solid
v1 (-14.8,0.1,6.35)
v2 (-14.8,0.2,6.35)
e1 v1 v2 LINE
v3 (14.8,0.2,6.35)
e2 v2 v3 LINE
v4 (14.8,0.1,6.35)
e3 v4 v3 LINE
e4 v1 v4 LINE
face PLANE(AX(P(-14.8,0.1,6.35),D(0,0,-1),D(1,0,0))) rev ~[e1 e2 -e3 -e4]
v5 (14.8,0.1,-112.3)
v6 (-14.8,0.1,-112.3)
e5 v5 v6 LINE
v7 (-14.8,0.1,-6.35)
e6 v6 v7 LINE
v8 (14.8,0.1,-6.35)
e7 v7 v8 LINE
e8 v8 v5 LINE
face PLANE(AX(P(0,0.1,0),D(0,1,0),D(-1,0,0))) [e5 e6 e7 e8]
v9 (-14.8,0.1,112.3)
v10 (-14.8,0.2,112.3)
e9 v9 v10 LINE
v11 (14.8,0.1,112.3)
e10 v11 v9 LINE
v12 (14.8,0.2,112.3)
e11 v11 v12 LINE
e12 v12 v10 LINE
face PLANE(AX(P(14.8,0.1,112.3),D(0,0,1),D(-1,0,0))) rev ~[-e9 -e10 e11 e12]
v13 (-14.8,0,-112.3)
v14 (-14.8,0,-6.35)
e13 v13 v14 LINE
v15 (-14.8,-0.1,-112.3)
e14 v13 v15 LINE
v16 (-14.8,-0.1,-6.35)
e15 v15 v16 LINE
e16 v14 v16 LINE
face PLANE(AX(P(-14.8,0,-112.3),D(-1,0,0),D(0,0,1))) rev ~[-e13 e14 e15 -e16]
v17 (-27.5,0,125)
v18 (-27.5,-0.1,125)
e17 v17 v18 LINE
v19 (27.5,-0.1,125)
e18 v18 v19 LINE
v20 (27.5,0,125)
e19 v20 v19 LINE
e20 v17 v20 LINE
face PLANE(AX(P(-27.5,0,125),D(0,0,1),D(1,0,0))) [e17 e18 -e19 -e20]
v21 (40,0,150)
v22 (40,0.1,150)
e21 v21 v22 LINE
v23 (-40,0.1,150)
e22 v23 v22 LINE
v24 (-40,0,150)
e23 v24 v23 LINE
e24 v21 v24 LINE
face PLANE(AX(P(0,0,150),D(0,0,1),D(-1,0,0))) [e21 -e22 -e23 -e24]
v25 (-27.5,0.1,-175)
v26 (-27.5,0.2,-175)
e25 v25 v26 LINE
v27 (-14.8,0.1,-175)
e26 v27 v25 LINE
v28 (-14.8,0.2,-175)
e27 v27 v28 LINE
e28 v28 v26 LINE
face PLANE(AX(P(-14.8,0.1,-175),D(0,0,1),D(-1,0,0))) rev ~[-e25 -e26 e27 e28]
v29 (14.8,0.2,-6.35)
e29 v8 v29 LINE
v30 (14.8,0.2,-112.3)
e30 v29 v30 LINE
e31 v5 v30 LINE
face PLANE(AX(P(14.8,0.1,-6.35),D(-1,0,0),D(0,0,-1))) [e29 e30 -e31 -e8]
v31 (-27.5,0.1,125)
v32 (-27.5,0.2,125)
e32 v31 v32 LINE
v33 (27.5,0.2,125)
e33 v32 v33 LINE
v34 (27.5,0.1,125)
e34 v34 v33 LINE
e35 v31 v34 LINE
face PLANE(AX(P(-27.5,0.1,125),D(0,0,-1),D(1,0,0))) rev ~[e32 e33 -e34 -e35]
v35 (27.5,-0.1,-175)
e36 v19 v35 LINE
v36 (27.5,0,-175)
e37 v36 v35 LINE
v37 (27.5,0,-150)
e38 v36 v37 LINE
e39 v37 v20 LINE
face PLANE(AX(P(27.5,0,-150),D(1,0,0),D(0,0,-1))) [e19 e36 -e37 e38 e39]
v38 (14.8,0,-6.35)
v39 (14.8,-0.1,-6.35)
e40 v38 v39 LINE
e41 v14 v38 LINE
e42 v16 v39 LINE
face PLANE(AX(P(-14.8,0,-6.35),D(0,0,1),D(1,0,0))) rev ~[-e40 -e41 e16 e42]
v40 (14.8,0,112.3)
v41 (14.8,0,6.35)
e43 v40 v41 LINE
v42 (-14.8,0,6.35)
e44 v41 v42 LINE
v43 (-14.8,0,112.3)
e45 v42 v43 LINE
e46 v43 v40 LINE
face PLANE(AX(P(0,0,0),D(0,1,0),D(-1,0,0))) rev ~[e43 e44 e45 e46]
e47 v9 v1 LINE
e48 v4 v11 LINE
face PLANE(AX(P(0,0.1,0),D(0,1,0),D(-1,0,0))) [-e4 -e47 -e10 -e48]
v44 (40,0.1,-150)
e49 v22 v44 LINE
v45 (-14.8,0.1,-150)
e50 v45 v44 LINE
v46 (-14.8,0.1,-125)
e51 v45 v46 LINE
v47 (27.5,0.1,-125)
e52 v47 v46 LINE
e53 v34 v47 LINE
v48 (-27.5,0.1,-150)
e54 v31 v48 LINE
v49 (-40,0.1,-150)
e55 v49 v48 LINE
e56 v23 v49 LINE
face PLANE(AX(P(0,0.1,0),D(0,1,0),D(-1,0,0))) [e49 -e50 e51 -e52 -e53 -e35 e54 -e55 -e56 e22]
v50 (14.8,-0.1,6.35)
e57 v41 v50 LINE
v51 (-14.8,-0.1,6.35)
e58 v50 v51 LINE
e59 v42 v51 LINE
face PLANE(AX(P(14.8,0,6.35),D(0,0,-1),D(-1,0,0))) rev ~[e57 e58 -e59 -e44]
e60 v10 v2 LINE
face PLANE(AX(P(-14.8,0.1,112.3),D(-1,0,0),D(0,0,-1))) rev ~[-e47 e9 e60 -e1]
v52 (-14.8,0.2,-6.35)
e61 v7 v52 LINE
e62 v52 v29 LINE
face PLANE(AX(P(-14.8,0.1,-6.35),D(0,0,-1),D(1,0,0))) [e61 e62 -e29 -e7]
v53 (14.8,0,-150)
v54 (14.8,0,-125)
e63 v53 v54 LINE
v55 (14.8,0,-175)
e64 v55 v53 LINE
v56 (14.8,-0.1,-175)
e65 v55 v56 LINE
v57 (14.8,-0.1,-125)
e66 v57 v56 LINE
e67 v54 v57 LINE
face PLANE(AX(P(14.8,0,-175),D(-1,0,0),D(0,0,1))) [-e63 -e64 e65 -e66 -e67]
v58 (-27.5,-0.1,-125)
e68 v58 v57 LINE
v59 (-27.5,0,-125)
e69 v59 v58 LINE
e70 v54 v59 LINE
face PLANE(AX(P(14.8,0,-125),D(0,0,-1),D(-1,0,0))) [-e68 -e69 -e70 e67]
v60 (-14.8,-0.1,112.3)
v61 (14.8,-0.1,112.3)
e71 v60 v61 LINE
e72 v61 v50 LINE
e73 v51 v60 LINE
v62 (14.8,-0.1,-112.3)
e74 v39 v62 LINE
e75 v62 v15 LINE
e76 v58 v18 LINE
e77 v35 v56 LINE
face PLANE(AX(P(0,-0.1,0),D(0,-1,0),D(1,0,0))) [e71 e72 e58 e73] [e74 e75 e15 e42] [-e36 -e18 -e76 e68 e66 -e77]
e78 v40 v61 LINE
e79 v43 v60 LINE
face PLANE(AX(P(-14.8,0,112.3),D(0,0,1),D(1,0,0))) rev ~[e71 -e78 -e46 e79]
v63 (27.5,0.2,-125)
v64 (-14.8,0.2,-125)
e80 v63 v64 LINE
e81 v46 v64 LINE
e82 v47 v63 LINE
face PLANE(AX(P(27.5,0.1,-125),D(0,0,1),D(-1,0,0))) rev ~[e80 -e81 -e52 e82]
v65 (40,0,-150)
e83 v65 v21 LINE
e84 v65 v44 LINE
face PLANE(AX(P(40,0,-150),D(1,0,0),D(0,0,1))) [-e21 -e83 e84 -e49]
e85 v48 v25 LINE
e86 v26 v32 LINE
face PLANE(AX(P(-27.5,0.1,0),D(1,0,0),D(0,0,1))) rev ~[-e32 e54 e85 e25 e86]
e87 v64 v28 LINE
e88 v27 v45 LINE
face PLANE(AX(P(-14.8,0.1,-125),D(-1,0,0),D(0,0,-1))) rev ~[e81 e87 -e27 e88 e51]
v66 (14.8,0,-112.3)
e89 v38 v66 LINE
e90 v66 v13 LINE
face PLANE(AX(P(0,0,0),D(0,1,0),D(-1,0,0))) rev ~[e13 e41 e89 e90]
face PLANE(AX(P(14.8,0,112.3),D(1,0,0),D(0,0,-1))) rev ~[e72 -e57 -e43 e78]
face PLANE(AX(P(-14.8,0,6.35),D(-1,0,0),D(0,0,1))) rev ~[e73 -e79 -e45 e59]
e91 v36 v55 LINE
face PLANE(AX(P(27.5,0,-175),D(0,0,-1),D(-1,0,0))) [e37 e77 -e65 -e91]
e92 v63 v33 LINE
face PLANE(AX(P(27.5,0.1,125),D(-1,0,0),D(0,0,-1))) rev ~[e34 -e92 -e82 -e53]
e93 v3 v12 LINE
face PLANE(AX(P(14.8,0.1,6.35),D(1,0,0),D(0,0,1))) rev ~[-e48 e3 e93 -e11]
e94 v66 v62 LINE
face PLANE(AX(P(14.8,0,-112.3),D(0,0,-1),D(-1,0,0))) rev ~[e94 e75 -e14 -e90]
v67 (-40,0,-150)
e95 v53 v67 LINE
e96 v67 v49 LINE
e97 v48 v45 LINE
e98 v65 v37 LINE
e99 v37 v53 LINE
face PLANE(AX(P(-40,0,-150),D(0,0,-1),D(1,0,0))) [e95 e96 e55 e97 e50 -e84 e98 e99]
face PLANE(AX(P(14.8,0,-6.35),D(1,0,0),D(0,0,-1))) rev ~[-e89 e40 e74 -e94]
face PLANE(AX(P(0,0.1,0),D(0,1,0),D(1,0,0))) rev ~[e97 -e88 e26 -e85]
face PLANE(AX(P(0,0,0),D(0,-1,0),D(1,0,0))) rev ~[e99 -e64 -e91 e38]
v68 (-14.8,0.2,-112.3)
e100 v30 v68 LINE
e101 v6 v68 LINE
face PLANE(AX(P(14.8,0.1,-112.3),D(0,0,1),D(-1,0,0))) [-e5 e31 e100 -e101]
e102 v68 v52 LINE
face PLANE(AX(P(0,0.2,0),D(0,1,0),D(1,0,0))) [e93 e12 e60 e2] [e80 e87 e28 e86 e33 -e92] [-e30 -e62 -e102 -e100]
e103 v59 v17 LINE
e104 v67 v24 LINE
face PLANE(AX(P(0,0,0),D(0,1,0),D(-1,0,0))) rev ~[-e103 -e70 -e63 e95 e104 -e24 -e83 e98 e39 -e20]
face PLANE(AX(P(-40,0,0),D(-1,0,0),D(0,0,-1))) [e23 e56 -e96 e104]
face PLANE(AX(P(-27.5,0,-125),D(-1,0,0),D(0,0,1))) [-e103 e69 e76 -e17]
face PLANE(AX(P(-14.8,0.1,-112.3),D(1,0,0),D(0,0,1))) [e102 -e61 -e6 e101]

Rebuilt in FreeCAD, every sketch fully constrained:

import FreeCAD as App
import Part
import Sketcher

V = App.Vector


def add_polygon(sketch, points):
    """Adds a closed chain of lines whose ends are joined by coincident constraints."""
    first, n = sketch.GeometryCount, len(points)
    for a, b in zip(points, points[1:] + points[:1]):
        sketch.addGeometry(Part.LineSegment(App.Vector(*a, 0), App.Vector(*b, 0)), False)
    for i in range(n):
        sketch.addConstraint(Sketcher.Constraint("Coincident", first + i, 2, first + (i + 1) % n, 1))

doc = App.newDocument("Part")
body = doc.addObject("PartDesign::Body", "Body")

# Sketch on XZ plane
sketch1 = body.newObject("Sketcher::SketchObject", "Sketch")
sketch1.AttachmentSupport = (doc.getObject("XZ_Plane"), [""])
sketch1.MapMode = "FlatFace"
add_polygon(sketch1, [(-40, -150), (-40, 150), (40, 150), (40, -150)])  # lines 0-3
sketch1.addConstraint(Sketcher.Constraint("Vertical", 0))
sketch1.addConstraint(Sketcher.Constraint("Horizontal", 1))
sketch1.addConstraint(Sketcher.Constraint("Vertical", 2))
sketch1.addConstraint(Sketcher.Constraint("Horizontal", 3))
sketch1.addConstraint(Sketcher.Constraint("Symmetric", 0, 2, 2, 2, -1, 1))
sketch1.addConstraint(Sketcher.Constraint("DistanceX", 1, 1, 1, 2, 80.0))
sketch1.addConstraint(Sketcher.Constraint("DistanceY", 0, 1, 0, 2, 300.0))
pad1 = body.newObject("PartDesign::Pad", "Pad")
pad1.Profile = sketch1
pad1.Length = 0.1
pad1.Reversed = True

# Sketch on XZ plane
sketch2 = body.newObject("Sketcher::SketchObject", "Sketch001")
sketch2.AttachmentSupport = (doc.getObject("XZ_Plane"), [""])
sketch2.MapMode = "FlatFace"
sketch2.AttachmentOffset = App.Placement(V(0, 0, -0.1), App.Rotation())
add_polygon(sketch2, [(28, 125), (28, -125), (-15, -125), (-15, -175), (-28, -175), (-28, 125)])  # lines 0-5
add_polygon(sketch2, [(-15, 112), (-15, 6), (15, 6), (15, 112)])  # lines 6-9
add_polygon(sketch2, [(-15, -112), (15, -112), (15, -6), (-15, -6)])  # lines 10-13
sketch2.addConstraint(Sketcher.Constraint("Vertical", 0))
sketch2.addConstraint(Sketcher.Constraint("Horizontal", 1))
sketch2.addConstraint(Sketcher.Constraint("Vertical", 2))
sketch2.addConstraint(Sketcher.Constraint("Horizontal", 3))
sketch2.addConstraint(Sketcher.Constraint("Vertical", 4))
sketch2.addConstraint(Sketcher.Constraint("Horizontal", 5))
sketch2.addConstraint(Sketcher.Constraint("Vertical", 6))
sketch2.addConstraint(Sketcher.Constraint("Horizontal", 7))
sketch2.addConstraint(Sketcher.Constraint("Vertical", 8))
sketch2.addConstraint(Sketcher.Constraint("Horizontal", 9))
sketch2.addConstraint(Sketcher.Constraint("Horizontal", 10))
sketch2.addConstraint(Sketcher.Constraint("Vertical", 11))
sketch2.addConstraint(Sketcher.Constraint("Horizontal", 12))
sketch2.addConstraint(Sketcher.Constraint("Vertical", 13))
sketch2.addConstraint(Sketcher.Constraint("Symmetric", 0, 2, 4, 2, -1, 1))
sketch2.addConstraint(Sketcher.Constraint("Symmetric", 9, 2, 10, 2, -1, 1))
sketch2.addConstraint(Sketcher.Constraint("Symmetric", 7, 2, 12, 2, -1, 1))
sketch2.addConstraint(Sketcher.Constraint("Vertical", 2, 2, 6, 2))
sketch2.addConstraint(Sketcher.Constraint("Vertical", 8, 2, 10, 2))
sketch2.addConstraint(Sketcher.Constraint("DistanceY", 0, 2, 0, 1, 250.0))
sketch2.addConstraint(Sketcher.Constraint("DistanceY", 2, 2, 2, 1, 50.0))
sketch2.addConstraint(Sketcher.Constraint("DistanceX", 3, 2, 3, 1, 12.7))
sketch2.addConstraint(Sketcher.Constraint("DistanceY", 8, 2, 5, 2, 12.7))
sketch2.addConstraint(Sketcher.Constraint("DistanceY", 11, 2, 7, 2, 12.7))
sketch2.addConstraint(Sketcher.Constraint("DistanceX", 5, 1, 5, 2, 55.0))
pad2 = body.newObject("PartDesign::Pad", "Pad001")
pad2.Profile = sketch2
pad2.Length = 0.1
pad2.Reversed = True

# Sketch on XZ plane
sketch3 = body.newObject("Sketcher::SketchObject", "Sketch002")
sketch3.AttachmentSupport = (doc.getObject("XZ_Plane"), [""])
sketch3.MapMode = "FlatFace"
add_polygon(sketch3, [(28, -175), (28, 125), (-28, 125), (-28, -125), (15, -125), (15, -175)])  # lines 0-5
add_polygon(sketch3, [(-15, 112), (15, 112), (15, 6), (-15, 6)])  # lines 6-9
add_polygon(sketch3, [(-15, -112), (-15, -6), (15, -6), (15, -112)])  # lines 10-13
sketch3.addConstraint(Sketcher.Constraint("Vertical", 0))
sketch3.addConstraint(Sketcher.Constraint("Horizontal", 1))
sketch3.addConstraint(Sketcher.Constraint("Vertical", 2))
sketch3.addConstraint(Sketcher.Constraint("Horizontal", 3))
sketch3.addConstraint(Sketcher.Constraint("Vertical", 4))
sketch3.addConstraint(Sketcher.Constraint("Horizontal", 5))
sketch3.addConstraint(Sketcher.Constraint("Horizontal", 6))
sketch3.addConstraint(Sketcher.Constraint("Vertical", 7))
sketch3.addConstraint(Sketcher.Constraint("Horizontal", 8))
sketch3.addConstraint(Sketcher.Constraint("Vertical", 9))
sketch3.addConstraint(Sketcher.Constraint("Vertical", 10))
sketch3.addConstraint(Sketcher.Constraint("Horizontal", 11))
sketch3.addConstraint(Sketcher.Constraint("Vertical", 12))
sketch3.addConstraint(Sketcher.Constraint("Horizontal", 13))
sketch3.addConstraint(Sketcher.Constraint("Symmetric", 0, 2, 2, 2, -1, 1))
sketch3.addConstraint(Sketcher.Constraint("Symmetric", 7, 2, 10, 2, -1, 1))
sketch3.addConstraint(Sketcher.Constraint("Symmetric", 9, 2, 12, 2, -1, 1))
sketch3.addConstraint(Sketcher.Constraint("Vertical", 4, 2, 6, 2))
sketch3.addConstraint(Sketcher.Constraint("Vertical", 9, 2, 10, 2))
sketch3.addConstraint(Sketcher.Constraint("DistanceX", 1, 2, 1, 1, 55.0))
sketch3.addConstraint(Sketcher.Constraint("DistanceY", 0, 1, 0, 2, 300.0))
sketch3.addConstraint(Sketcher.Constraint("DistanceY", 2, 2, 2, 1, 250.0))
sketch3.addConstraint(Sketcher.Constraint("DistanceX", 3, 1, 3, 2, 42.3))
sketch3.addConstraint(Sketcher.Constraint("DistanceY", 7, 2, 7, 1, 105.95))
sketch3.addConstraint(Sketcher.Constraint("DistanceY", -1, 1, 6, 2, 112.3))
pad3 = body.newObject("PartDesign::Pad", "Pad002")
pad3.Profile = sketch3
pad3.Length = 0.1

doc.recompute()
